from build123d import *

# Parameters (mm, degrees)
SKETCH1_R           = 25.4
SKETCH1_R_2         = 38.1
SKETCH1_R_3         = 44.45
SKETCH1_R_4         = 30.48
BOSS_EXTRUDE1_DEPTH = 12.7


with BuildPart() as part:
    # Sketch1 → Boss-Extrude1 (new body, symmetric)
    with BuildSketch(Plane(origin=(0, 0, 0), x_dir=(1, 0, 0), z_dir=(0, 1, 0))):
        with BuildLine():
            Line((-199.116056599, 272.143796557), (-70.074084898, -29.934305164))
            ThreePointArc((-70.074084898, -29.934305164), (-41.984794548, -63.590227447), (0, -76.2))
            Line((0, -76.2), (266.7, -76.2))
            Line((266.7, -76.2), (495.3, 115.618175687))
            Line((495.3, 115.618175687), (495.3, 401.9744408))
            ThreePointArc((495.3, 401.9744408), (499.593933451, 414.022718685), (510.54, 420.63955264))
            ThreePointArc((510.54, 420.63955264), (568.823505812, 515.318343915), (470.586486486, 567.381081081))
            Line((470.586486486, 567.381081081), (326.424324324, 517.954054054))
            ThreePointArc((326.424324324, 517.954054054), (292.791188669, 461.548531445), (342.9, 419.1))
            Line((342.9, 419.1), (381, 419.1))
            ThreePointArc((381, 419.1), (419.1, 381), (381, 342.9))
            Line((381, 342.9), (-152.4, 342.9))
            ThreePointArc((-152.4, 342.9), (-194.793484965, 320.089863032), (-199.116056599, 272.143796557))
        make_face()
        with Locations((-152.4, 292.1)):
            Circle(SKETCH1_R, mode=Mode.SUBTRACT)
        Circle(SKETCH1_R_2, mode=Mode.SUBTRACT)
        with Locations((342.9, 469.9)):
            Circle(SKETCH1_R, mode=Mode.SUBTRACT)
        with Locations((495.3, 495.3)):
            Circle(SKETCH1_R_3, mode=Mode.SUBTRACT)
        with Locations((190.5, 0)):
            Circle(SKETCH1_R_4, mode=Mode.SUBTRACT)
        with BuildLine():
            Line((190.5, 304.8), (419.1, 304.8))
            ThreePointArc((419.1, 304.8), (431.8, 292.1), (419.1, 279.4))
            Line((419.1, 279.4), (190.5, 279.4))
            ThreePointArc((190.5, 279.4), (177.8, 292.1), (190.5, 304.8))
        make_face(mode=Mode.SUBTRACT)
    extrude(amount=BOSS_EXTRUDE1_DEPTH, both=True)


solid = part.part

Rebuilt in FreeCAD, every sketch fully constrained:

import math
import FreeCAD as App
import Part
import Sketcher

V = App.Vector
Q = App.Units.Quantity

doc = App.newDocument("Part")
body = doc.addObject("PartDesign::Body", "Body")

sketch1 = body.newObject("Sketcher::SketchObject", "Sketch")
sketch1.AttachmentSupport = (doc.getObject("XZ_Plane"), [""])
sketch1.MapMode = "FlatFace"
sketch1.addGeometry([
    Part.LineSegment(V(-199.116057, -272.143797, 0), V(-70.074085, 29.934305, 0)),
    Part.ArcOfCircle(Part.Circle(V(0, 0, 0), V(0, 0, 1), 76.2), math.radians(90), math.radians(156.868756)),
    Part.LineSegment(V(0, 76.2, 0), V(266.7, 76.2, 0)),
    Part.LineSegment(V(266.7, 76.2, 0), V(495.3, -115.618176, 0)),
    Part.LineSegment(V(495.3, -115.618176, 0), V(495.3, -401.974441, 0)),
    Part.ArcOfCircle(Part.Circle(V(514.35, -401.974441, 0), V(0, 0, 1), 19.05), math.radians(-180), math.radians(-101.536959)),
    Part.ArcOfCircle(Part.Circle(V(495.3, -495.3, 0), V(0, 0, 1), 76.2), math.radians(-108.924644), math.radians(78.463041)),
    Part.LineSegment(V(470.586486, -567.381081, 0), V(326.424324, -517.954054, 0)),
    Part.ArcOfCircle(Part.Circle(V(342.9, -469.9, 0), V(0, 0, 1), 50.8), math.radians(90), math.radians(251.075356)),
    Part.LineSegment(V(342.9, -419.1, 0), V(381, -419.1, 0)),
    Part.ArcOfCircle(Part.Circle(V(381, -381, 0), V(0, 0, 1), 38.1), math.radians(-90), math.radians(90)),
    Part.LineSegment(V(381, -342.9, 0), V(-152.4, -342.9, 0)),
    Part.ArcOfCircle(Part.Circle(V(-152.4, -292.1, 0), V(0, 0, 1), 50.8), math.radians(156.868756), math.radians(270)),
    Part.Circle(V(0, 0, 0), V(0, 0, 1), 38.1),
    Part.Circle(V(190.5, 0, 0), V(0, 0, 1), 30.48),
    Part.Circle(V(-152.4, -292.1, 0), V(0, 0, 1), 25.4),
    Part.ArcOfCircle(Part.Circle(V(190.5, -292.1, 0), V(0, 0, 1), 12.7), math.radians(90), math.radians(270)),
    Part.LineSegment(V(190.5, -304.8, 0), V(419.1, -304.8, 0)),
    Part.ArcOfCircle(Part.Circle(V(419.1, -292.1, 0), V(0, 0, 1), 12.7), math.radians(-90), math.radians(90)),
    Part.LineSegment(V(419.1, -279.4, 0), V(190.5, -279.4, 0)),
    Part.Circle(V(342.9, -469.9, 0), V(0, 0, 1), 25.4),
    Part.Circle(V(495.3, -495.3, 0), V(0, 0, 1), 44.45),
], False)
sketch1.addConstraint([
    Sketcher.Constraint("Tangent", 0, 2, 1, 2),
    Sketcher.Constraint("Tangent", 1, 1, 2, 1),
    Sketcher.Constraint("Coincident", 2, 2, 3, 1),
    Sketcher.Constraint("Coincident", 3, 2, 4, 1),
    Sketcher.Constraint("Tangent", 4, 2, 5, 1),
    Sketcher.Constraint("Tangent", 5, 2, 6, 2),
    Sketcher.Constraint("Tangent", 6, 1, 7, 1),
    Sketcher.Constraint("Tangent", 7, 2, 8, 2),
    Sketcher.Constraint("Tangent", 8, 1, 9, 1),
    Sketcher.Constraint("Tangent", 9, 2, 10, 1),
    Sketcher.Constraint("Tangent", 10, 2, 11, 1),
    Sketcher.Constraint("Tangent", 11, 2, 12, 2),
    Sketcher.Constraint("Tangent", 12, 1, 0, 1),
    Sketcher.Constraint("Tangent", 16, 2, 17, 1),
    Sketcher.Constraint("Tangent", 17, 2, 18, 1),
    Sketcher.Constraint("Tangent", 18, 2, 19, 1),
    Sketcher.Constraint("Tangent", 19, 2, 16, 1),
    Sketcher.Constraint("Horizontal", 2),
    Sketcher.Constraint("Vertical", 4),
    Sketcher.Constraint("Horizontal", 9),
    Sketcher.Constraint("Horizontal", 11),
    Sketcher.Constraint("Horizontal", 17),
    Sketcher.Constraint("Horizontal", 19),
    Sketcher.Constraint("Coincident", 1, 3, -1, 1),
    Sketcher.Constraint("Coincident", 13, 3, -1, 1),
    Sketcher.Constraint("Coincident", 15, 3, 12, 3),
    Sketcher.Constraint("Coincident", 20, 3, 8, 3),
    Sketcher.Constraint("Coincident", 21, 3, 6, 3),
    Sketcher.Constraint("Equal", 1, 6),
    Sketcher.Constraint("Equal", 8, 12),
    Sketcher.Constraint("Equal", 10, 13),
    Sketcher.Constraint("Equal", 15, 20),
    Sketcher.Constraint("PointOnObject", 14, 3, -1),
    Sketcher.Constraint("Horizontal", 15, 3, 16, 3),
    Sketcher.Constraint("Vertical", 14, 3, 16, 3),
    Sketcher.Constraint("Vertical", 21, 3, 3, 2),
    Sketcher.Constraint("Diameter", 13, Q("3 in")),
    Sketcher.Constraint("Diameter", 15, Q("2 in")),
    Sketcher.Constraint("Radius", 1, Q("3 in")),
    Sketcher.Constraint("Radius", 8, Q("2 in")),
    Sketcher.Constraint("Diameter", 14, Q("2.4 in")),
    Sketcher.Constraint("Diameter", 21, Q("3.5 in")),
    Sketcher.Constraint("Radius", 16, Q("0.5 in")),
    Sketcher.Constraint("DistanceX", 11, 2, 11, 1, Q("21 in")),
    Sketcher.Constraint("DistanceX", 17, 1, 17, 2, Q("9 in")),
    Sketcher.Constraint("Radius", 5, Q("0.75 in")),
    Sketcher.Constraint("Distance", 7, Q("6 in")),
    Sketcher.Constraint("DistanceX", 2, 1, 2, 2, Q("10.5 in")),
    Sketcher.Constraint("DistanceX", 9, 1, 9, 2, Q("1.5 in")),
    Sketcher.Constraint("DistanceX", -1, 1, 10, 3, Q("15 in")),
    Sketcher.Constraint("DistanceY", 10, 3, -1, 1, Q("15 in")),
    Sketcher.Constraint("Angle", 3, Q("-40 deg")),
    Sketcher.Constraint("DistanceX", 8, 3, 6, 3, Q("6 in")),
    Sketcher.Constraint("DistanceX", 14, 3, 8, 3, Q("6 in")),
])
pad1 = body.newObject("PartDesign::Pad", "Pad")
pad1.Profile = sketch1
pad1.Length = Q("1 in")
pad1.Midplane = True

doc.recompute()
